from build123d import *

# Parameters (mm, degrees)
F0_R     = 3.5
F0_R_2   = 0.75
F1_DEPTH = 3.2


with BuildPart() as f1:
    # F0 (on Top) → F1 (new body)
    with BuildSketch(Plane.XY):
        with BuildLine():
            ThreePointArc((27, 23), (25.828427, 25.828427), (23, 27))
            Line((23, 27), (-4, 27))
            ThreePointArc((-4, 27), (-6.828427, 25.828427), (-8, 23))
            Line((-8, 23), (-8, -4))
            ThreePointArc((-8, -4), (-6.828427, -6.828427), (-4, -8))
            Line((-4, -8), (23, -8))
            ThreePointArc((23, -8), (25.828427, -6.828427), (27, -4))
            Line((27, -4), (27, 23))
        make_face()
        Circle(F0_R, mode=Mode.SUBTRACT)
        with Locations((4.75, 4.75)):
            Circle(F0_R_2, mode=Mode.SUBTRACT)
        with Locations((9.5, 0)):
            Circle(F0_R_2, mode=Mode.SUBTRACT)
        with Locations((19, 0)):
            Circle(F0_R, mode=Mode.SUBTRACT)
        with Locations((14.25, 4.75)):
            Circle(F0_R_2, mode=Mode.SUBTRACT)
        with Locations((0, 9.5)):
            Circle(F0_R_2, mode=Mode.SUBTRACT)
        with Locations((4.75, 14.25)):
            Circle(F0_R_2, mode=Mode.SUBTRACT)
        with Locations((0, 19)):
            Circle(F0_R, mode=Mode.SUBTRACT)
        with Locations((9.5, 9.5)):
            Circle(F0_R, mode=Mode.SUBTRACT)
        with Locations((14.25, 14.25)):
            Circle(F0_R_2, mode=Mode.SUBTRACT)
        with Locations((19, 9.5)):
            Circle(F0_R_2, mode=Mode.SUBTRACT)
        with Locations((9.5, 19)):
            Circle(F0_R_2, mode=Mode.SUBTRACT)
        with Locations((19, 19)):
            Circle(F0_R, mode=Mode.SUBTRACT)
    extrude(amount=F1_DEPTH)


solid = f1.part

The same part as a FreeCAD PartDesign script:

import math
import FreeCAD as App
import Part
import Sketcher
Q = App.Units.Quantity

doc = App.newDocument("Part")
params = doc.addObject("Spreadsheet::Sheet", "Params")
for row, (alias, value) in enumerate([
    ("sketch1_diameter", "7 mm"),
    ("sketch1_radius", "4 mm"),
    ("sketch1_diameter2", "1.5 mm"),
    ("sketch1_width", "27 mm"),
    ("pad1_length", "3.2 mm"),
], start=1):
    params.set(f"A{row}", alias)
    params.set(f"B{row}", "=" + value)
    params.setAlias(f"B{row}", alias)

body = doc.addObject("PartDesign::Body", "Body")

# Sketch on XY plane
sketch1 = body.newObject("Sketcher::SketchObject", "Sketch")
sketch1.AttachmentSupport = (doc.getObject("XY_Plane"), [""])
sketch1.MapMode = "FlatFace"
sketch1.addGeometry([
    Part.ArcOfCircle(Part.Circle(App.Vector(23, 23, 0), App.Vector(0, 0, 1), 4), math.radians(0.000006), math.radians(89.999994)),  # 0
    Part.LineSegment(App.Vector(23, 27, 0), App.Vector(-4, 27, 0)),  # 1
    Part.ArcOfCircle(Part.Circle(App.Vector(-4, 23, 0), App.Vector(0, 0, 1), 4), math.radians(90.000006), math.radians(179.999994)),  # 2
    Part.LineSegment(App.Vector(-8, 23, 0), App.Vector(-8, -4, 0)),  # 3
    Part.ArcOfCircle(Part.Circle(App.Vector(-4, -4, 0), App.Vector(0, 0, 1), 4), math.radians(-179.999994), math.radians(-90.000006)),  # 4
    Part.LineSegment(App.Vector(-4, -8, 0), App.Vector(23, -8, 0)),  # 5
    Part.ArcOfCircle(Part.Circle(App.Vector(23, -4, 0), App.Vector(0, 0, 1), 4), math.radians(-89.999994), math.radians(-0.000006)),  # 6
    Part.LineSegment(App.Vector(27, -4, 0), App.Vector(27, 23, 0)),  # 7
    Part.Circle(App.Vector(0, 0, 0), App.Vector(0, 0, 1), 3.5),  # 8
    Part.Circle(App.Vector(4.75, 4.75, 0), App.Vector(0, 0, 1), 0.75),  # 9
    Part.Circle(App.Vector(9.5, 0, 0), App.Vector(0, 0, 1), 0.75),  # 10
    Part.Circle(App.Vector(19, 0, 0), App.Vector(0, 0, 1), 3.5),  # 11
    Part.Circle(App.Vector(14.25, 4.75, 0), App.Vector(0, 0, 1), 0.75),  # 12
    Part.Circle(App.Vector(0, 9.5, 0), App.Vector(0, 0, 1), 0.75),  # 13
    Part.Circle(App.Vector(4.75, 14.25, 0), App.Vector(0, 0, 1), 0.75),  # 14
    Part.Circle(App.Vector(0, 19, 0), App.Vector(0, 0, 1), 3.5),  # 15
    Part.Circle(App.Vector(9.5, 9.5, 0), App.Vector(0, 0, 1), 3.5),  # 16
    Part.Circle(App.Vector(14.25, 14.25, 0), App.Vector(0, 0, 1), 0.75),  # 17
    Part.Circle(App.Vector(19, 9.5, 0), App.Vector(0, 0, 1), 0.75),  # 18
    Part.Circle(App.Vector(9.5, 19, 0), App.Vector(0, 0, 1), 0.75),  # 19
    Part.Circle(App.Vector(19, 19, 0), App.Vector(0, 0, 1), 3.5),  # 20
], False)
sketch1.addConstraint([
    Sketcher.Constraint("Tangent", 0, 2, 1, 1),
    Sketcher.Constraint("Tangent", 1, 2, 2, 1),
    Sketcher.Constraint("Tangent", 2, 2, 3, 1),
    Sketcher.Constraint("Tangent", 3, 2, 4, 1),
    Sketcher.Constraint("Tangent", 4, 2, 5, 1),
    Sketcher.Constraint("Tangent", 5, 2, 6, 1),
    Sketcher.Constraint("Tangent", 6, 2, 7, 1),
    Sketcher.Constraint("Tangent", 7, 2, 0, 1),
    Sketcher.Constraint("Horizontal", 1),
    Sketcher.Constraint("Vertical", 3),
    Sketcher.Constraint("Horizontal", 5),
    Sketcher.Constraint("Vertical", 7),
    Sketcher.Constraint("Coincident", 8, 3, -1, 1),
    Sketcher.Constraint("Equal", 0, 2),
    Sketcher.Constraint("Equal", 2, 4),
    Sketcher.Constraint("Equal", 4, 6),
    Sketcher.Constraint("Equal", 9, 10),
    Sketcher.Constraint("Equal", 8, 11),
    Sketcher.Constraint("Equal", 10, 12),
    Sketcher.Constraint("Equal", 12, 13),
    Sketcher.Constraint("Equal", 13, 14),
    Sketcher.Constraint("Equal", 11, 15),
    Sketcher.Constraint("Equal", 15, 16),
    Sketcher.Constraint("Equal", 14, 17),
    Sketcher.Constraint("Equal", 17, 18),
    Sketcher.Constraint("Equal", 18, 19),
    Sketcher.Constraint("Equal", 16, 20),
    Sketcher.Constraint("PointOnObject", 10, 3, -1),
    Sketcher.Constraint("PointOnObject", 11, 3, -1),
    Sketcher.Constraint("PointOnObject", 13, 3, -2),
    Sketcher.Constraint("PointOnObject", 15, 3, -2),
    Sketcher.Constraint("Horizontal", 9, 3, 12, 3),
    Sketcher.Constraint("Horizontal", 13, 3, 16, 3),
    Sketcher.Constraint("Horizontal", 14, 3, 17, 3),
    Sketcher.Constraint("Horizontal", 16, 3, 18, 3),
    Sketcher.Constraint("Horizontal", 15, 3, 19, 3),
    Sketcher.Constraint("Horizontal", 19, 3, 20, 3),
    Sketcher.Constraint("Vertical", 9, 3, 14, 3),
    Sketcher.Constraint("Vertical", 10, 3, 16, 3),
    Sketcher.Constraint("Vertical", 12, 3, 17, 3),
    Sketcher.Constraint("Vertical", 11, 3, 18, 3),
    Sketcher.Constraint("Vertical", 16, 3, 19, 3),
    Sketcher.Constraint("Vertical", 18, 3, 20, 3),
    Sketcher.Constraint("Equal", 5, 3),
    Sketcher.Constraint("Diameter", 8, Q("7 mm")),
    Sketcher.Constraint("Radius", 0, Q("4 mm")),
    Sketcher.Constraint("Diameter", 9, Q("1.5 mm")),
    Sketcher.Constraint("DistanceX", 1, 2, 1, 1, Q("27 mm")),
    Sketcher.Constraint("DistanceX", -1, 1, 0, 3, Q("23 mm")),
    Sketcher.Constraint("DistanceY", -1, 1, 0, 3, Q("23 mm")),
    Sketcher.Constraint("DistanceX", -1, 1, 11, 3, Q("19 mm")),
    Sketcher.Constraint("DistanceY", -1, 1, 15, 3, Q("19 mm")),
    Sketcher.Constraint("DistanceX", -1, 1, 10, 3, Q("9.5 mm")),
    Sketcher.Constraint("DistanceY", -1, 1, 13, 3, Q("9.5 mm")),
    Sketcher.Constraint("DistanceX", 9, 3, 12, 3, Q("9.5 mm")),
    Sketcher.Constraint("DistanceY", 9, 3, 14, 3, Q("9.5 mm")),
    Sketcher.Constraint("DistanceX", -1, 1, 9, 3, Q("4.75 mm")),
    Sketcher.Constraint("DistanceY", -1, 1, 9, 3, Q("4.75 mm")),
])
sketch1.setExpression("Constraints[44]", "Params.sketch1_diameter")
sketch1.setExpression("Constraints[45]", "Params.sketch1_radius")
sketch1.setExpression("Constraints[46]", "Params.sketch1_diameter2")
sketch1.setExpression("Constraints[47]", "Params.sketch1_width")
pad1 = body.newObject("PartDesign::Pad", "Pad")
pad1.Profile = sketch1
pad1.setExpression("Length", "Params.pad1_length")

doc.recompute()
